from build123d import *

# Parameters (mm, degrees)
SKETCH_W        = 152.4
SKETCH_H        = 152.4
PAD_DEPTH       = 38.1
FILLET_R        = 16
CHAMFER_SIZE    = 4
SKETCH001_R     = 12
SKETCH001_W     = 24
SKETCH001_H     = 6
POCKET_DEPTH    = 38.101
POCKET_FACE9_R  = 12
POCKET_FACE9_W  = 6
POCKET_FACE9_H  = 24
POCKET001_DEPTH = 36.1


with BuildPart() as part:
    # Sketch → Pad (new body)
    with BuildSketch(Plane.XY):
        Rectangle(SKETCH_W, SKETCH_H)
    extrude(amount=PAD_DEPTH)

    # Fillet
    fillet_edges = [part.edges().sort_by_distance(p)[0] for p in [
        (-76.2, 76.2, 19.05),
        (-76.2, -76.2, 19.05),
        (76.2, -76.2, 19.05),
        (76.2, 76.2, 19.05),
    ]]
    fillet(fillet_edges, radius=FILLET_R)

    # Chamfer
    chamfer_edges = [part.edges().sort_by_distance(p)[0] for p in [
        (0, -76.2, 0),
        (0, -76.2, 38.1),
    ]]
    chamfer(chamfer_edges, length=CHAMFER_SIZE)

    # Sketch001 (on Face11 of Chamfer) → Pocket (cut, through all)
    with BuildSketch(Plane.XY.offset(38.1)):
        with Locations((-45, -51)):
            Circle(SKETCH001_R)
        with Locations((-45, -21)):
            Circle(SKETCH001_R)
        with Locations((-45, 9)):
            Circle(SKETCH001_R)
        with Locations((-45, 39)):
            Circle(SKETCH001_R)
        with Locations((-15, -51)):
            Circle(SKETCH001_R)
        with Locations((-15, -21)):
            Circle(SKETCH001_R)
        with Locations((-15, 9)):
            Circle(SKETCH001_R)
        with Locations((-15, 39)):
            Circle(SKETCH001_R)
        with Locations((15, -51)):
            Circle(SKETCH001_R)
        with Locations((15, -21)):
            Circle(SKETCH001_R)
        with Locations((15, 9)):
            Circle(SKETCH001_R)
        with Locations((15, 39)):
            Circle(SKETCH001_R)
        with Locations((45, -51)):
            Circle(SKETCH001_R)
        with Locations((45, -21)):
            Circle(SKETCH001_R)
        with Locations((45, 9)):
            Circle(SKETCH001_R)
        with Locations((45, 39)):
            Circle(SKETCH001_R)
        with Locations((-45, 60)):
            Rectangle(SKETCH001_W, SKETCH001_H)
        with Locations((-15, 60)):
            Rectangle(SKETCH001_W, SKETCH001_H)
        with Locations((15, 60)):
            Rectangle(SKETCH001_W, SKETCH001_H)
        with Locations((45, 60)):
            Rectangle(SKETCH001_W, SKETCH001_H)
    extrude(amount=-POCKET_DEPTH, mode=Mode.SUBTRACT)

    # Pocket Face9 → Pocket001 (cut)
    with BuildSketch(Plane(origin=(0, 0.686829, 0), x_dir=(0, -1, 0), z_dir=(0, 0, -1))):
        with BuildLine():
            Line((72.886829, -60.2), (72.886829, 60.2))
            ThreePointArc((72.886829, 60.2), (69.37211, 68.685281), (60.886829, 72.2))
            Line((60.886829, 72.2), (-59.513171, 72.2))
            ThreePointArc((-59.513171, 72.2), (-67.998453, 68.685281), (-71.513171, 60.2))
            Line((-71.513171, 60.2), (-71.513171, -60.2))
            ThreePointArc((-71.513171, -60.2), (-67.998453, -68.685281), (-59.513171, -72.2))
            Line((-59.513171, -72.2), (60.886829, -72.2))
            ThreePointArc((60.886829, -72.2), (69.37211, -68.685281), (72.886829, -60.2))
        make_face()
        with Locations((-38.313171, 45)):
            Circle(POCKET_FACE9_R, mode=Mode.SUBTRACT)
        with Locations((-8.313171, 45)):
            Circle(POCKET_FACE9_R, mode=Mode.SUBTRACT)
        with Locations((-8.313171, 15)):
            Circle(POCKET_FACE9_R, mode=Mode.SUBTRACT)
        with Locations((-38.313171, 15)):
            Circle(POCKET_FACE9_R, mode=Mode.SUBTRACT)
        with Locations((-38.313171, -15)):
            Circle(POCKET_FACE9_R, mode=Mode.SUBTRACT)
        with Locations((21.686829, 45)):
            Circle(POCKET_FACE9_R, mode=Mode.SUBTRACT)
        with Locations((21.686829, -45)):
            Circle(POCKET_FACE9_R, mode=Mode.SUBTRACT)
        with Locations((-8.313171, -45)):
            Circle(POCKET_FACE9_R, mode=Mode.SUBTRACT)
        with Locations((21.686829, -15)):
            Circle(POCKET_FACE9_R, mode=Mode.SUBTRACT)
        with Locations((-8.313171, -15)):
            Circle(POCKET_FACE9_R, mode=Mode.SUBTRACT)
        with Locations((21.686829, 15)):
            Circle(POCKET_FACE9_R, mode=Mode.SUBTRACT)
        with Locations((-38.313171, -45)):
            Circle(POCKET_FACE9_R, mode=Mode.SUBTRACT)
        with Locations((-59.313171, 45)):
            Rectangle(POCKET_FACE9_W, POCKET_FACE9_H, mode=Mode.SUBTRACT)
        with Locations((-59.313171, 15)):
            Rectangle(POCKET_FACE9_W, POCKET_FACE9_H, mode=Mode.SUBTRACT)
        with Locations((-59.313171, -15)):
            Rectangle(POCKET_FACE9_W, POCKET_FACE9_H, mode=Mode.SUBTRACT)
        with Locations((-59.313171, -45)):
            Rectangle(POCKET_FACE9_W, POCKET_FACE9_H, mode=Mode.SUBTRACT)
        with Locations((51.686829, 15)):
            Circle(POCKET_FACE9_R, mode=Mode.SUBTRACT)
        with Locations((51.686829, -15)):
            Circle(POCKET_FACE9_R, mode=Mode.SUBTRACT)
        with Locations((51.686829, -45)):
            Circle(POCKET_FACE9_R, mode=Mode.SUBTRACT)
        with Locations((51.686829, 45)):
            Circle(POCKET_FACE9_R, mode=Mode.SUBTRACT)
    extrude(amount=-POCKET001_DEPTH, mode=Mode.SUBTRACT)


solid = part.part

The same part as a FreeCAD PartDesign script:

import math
import FreeCAD as App
import Part
import Sketcher
from FreeCAD import Vector
Q = App.Units.Quantity


def edges_at(feature, points):
    """Names of the edges that pass closest to the given points."""
    edges = feature.Shape.Edges
    near = lambda p: min(range(len(edges)), key=lambda i: edges[i].distToShape(Part.Vertex(*p))[0])
    return sorted({f"Edge{near(p) + 1}" for p in points})

doc = App.newDocument("Part")
body = doc.addObject("PartDesign::Body", "Body")

# Sketch on XY plane
sketch1 = body.newObject("Sketcher::SketchObject", "Sketch")
sketch1.AttachmentSupport = (doc.getObject("XY_Plane"), [""])
sketch1.MapMode = "FlatFace"
sketch1.addGeometry(Part.LineSegment(Vector(-76, 76, 0), Vector(-76, -76, 0)), False)
sketch1.addGeometry(Part.LineSegment(Vector(-76, -76, 0), Vector(76, -76, 0)), False)
sketch1.addGeometry(Part.LineSegment(Vector(76, -76, 0), Vector(76, 76, 0)), False)
sketch1.addGeometry(Part.LineSegment(Vector(76, 76, 0), Vector(-76, 76, 0)), False)
sketch1.addConstraint(Sketcher.Constraint("Coincident", 0, 2, 1, 1))
sketch1.addConstraint(Sketcher.Constraint("Coincident", 1, 2, 2, 1))
sketch1.addConstraint(Sketcher.Constraint("Coincident", 2, 2, 3, 1))
sketch1.addConstraint(Sketcher.Constraint("Coincident", 3, 2, 0, 1))
sketch1.addConstraint(Sketcher.Constraint("Vertical", 0))
sketch1.addConstraint(Sketcher.Constraint("Horizontal", 1))
sketch1.addConstraint(Sketcher.Constraint("Vertical", 2))
sketch1.addConstraint(Sketcher.Constraint("Horizontal", 3))
sketch1.addConstraint(Sketcher.Constraint("Symmetric", 0, 2, 2, 2, -1, 1))
sketch1.addConstraint(Sketcher.Constraint("Equal", 3, 0))
sketch1.addConstraint(Sketcher.Constraint("DistanceX", 1, 1, 1, 2, Q("152.4 mm")))
pad1 = body.newObject("PartDesign::Pad", "Pad")
pad1.Profile = sketch1
pad1.Length = 38.1
doc.recompute()

fillet = body.newObject("PartDesign::Fillet", "Fillet")
fillet.Base = (pad1, edges_at(pad1, [
    (-76.2, 76.2, 19.05),
    (-76.2, -76.2, 19.05),
    (76.2, -76.2, 19.05),
    (76.2, 76.2, 19.05),
]))
fillet.Radius = 16
doc.recompute()

chamfer = body.newObject("PartDesign::Chamfer", "Chamfer")
chamfer.Base = (fillet, edges_at(fillet, [(0, -76.2, 0), (0, -76.2, 38.1)]))
chamfer.Size = 4

# Sketch on XY plane
sketch2 = body.newObject("Sketcher::SketchObject", "Sketch001")
sketch2.AttachmentSupport = (doc.getObject("XY_Plane"), [""])
sketch2.MapMode = "FlatFace"
sketch2.AttachmentOffset = App.Placement(Vector(0, 0, 38.1), App.Rotation())
sketch2.addGeometry(Part.Circle(Vector(-45, -51, 0), Vector(0, 0, 1), 12), False)
sketch2.addGeometry(Part.Circle(Vector(-45, -21, 0), Vector(0, 0, 1), 12), False)
sketch2.addGeometry(Part.Circle(Vector(-45, 9, 0), Vector(0, 0, 1), 12), False)
sketch2.addGeometry(Part.Circle(Vector(-45, 39, 0), Vector(0, 0, 1), 12), False)
sketch2.addGeometry(Part.Circle(Vector(-15, -51, 0), Vector(0, 0, 1), 12), False)
sketch2.addGeometry(Part.Circle(Vector(-15, -21, 0), Vector(0, 0, 1), 12), False)
sketch2.addGeometry(Part.Circle(Vector(-15, 9, 0), Vector(0, 0, 1), 12), False)
sketch2.addGeometry(Part.Circle(Vector(-15, 39, 0), Vector(0, 0, 1), 12), False)
sketch2.addGeometry(Part.Circle(Vector(15, -51, 0), Vector(0, 0, 1), 12), False)
sketch2.addGeometry(Part.Circle(Vector(15, -21, 0), Vector(0, 0, 1), 12), False)
sketch2.addGeometry(Part.Circle(Vector(15, 9, 0), Vector(0, 0, 1), 12), False)
sketch2.addGeometry(Part.Circle(Vector(15, 39, 0), Vector(0, 0, 1), 12), False)
sketch2.addGeometry(Part.Circle(Vector(45, -51, 0), Vector(0, 0, 1), 12), False)
sketch2.addGeometry(Part.Circle(Vector(45, -21, 0), Vector(0, 0, 1), 12), False)
sketch2.addGeometry(Part.Circle(Vector(45, 9, 0), Vector(0, 0, 1), 12), False)
sketch2.addGeometry(Part.Circle(Vector(45, 39, 0), Vector(0, 0, 1), 12), False)
sketch2.addGeometry(Part.LineSegment(Vector(-57, 63, 0), Vector(-57, 57, 0)), False)
sketch2.addGeometry(Part.LineSegment(Vector(-57, 57, 0), Vector(-33, 57, 0)), False)
sketch2.addGeometry(Part.LineSegment(Vector(-33, 57, 0), Vector(-33, 63, 0)), False)
sketch2.addGeometry(Part.LineSegment(Vector(-33, 63, 0), Vector(-57, 63, 0)), False)
sketch2.addGeometry(Part.LineSegment(Vector(-27, 63, 0), Vector(-27, 57, 0)), False)
sketch2.addGeometry(Part.LineSegment(Vector(-27, 57, 0), Vector(-3, 57, 0)), False)
sketch2.addGeometry(Part.LineSegment(Vector(-3, 57, 0), Vector(-3, 63, 0)), False)
sketch2.addGeometry(Part.LineSegment(Vector(-3, 63, 0), Vector(-27, 63, 0)), False)
sketch2.addGeometry(Part.LineSegment(Vector(3, 63, 0), Vector(3, 57, 0)), False)
sketch2.addGeometry(Part.LineSegment(Vector(3, 57, 0), Vector(27, 57, 0)), False)
sketch2.addGeometry(Part.LineSegment(Vector(27, 57, 0), Vector(27, 63, 0)), False)
sketch2.addGeometry(Part.LineSegment(Vector(27, 63, 0), Vector(3, 63, 0)), False)
sketch2.addGeometry(Part.LineSegment(Vector(33, 63, 0), Vector(33, 57, 0)), False)
sketch2.addGeometry(Part.LineSegment(Vector(33, 57, 0), Vector(57, 57, 0)), False)
sketch2.addGeometry(Part.LineSegment(Vector(57, 57, 0), Vector(57, 63, 0)), False)
sketch2.addGeometry(Part.LineSegment(Vector(57, 63, 0), Vector(33, 63, 0)), False)
sketch2.addConstraint(Sketcher.Constraint("Coincident", 16, 2, 17, 1))
sketch2.addConstraint(Sketcher.Constraint("Coincident", 17, 2, 18, 1))
sketch2.addConstraint(Sketcher.Constraint("Coincident", 18, 2, 19, 1))
sketch2.addConstraint(Sketcher.Constraint("Coincident", 19, 2, 16, 1))
sketch2.addConstraint(Sketcher.Constraint("Coincident", 20, 2, 21, 1))
sketch2.addConstraint(Sketcher.Constraint("Coincident", 21, 2, 22, 1))
sketch2.addConstraint(Sketcher.Constraint("Coincident", 22, 2, 23, 1))
sketch2.addConstraint(Sketcher.Constraint("Coincident", 23, 2, 20, 1))
sketch2.addConstraint(Sketcher.Constraint("Coincident", 24, 2, 25, 1))
sketch2.addConstraint(Sketcher.Constraint("Coincident", 25, 2, 26, 1))
sketch2.addConstraint(Sketcher.Constraint("Coincident", 26, 2, 27, 1))
sketch2.addConstraint(Sketcher.Constraint("Coincident", 27, 2, 24, 1))
sketch2.addConstraint(Sketcher.Constraint("Coincident", 28, 2, 29, 1))
sketch2.addConstraint(Sketcher.Constraint("Coincident", 29, 2, 30, 1))
sketch2.addConstraint(Sketcher.Constraint("Coincident", 30, 2, 31, 1))
sketch2.addConstraint(Sketcher.Constraint("Coincident", 31, 2, 28, 1))
sketch2.addConstraint(Sketcher.Constraint("Vertical", 16))
sketch2.addConstraint(Sketcher.Constraint("Horizontal", 17))
sketch2.addConstraint(Sketcher.Constraint("Vertical", 18))
sketch2.addConstraint(Sketcher.Constraint("Horizontal", 19))
sketch2.addConstraint(Sketcher.Constraint("Vertical", 20))
sketch2.addConstraint(Sketcher.Constraint("Horizontal", 21))
sketch2.addConstraint(Sketcher.Constraint("Vertical", 22))
sketch2.addConstraint(Sketcher.Constraint("Horizontal", 23))
sketch2.addConstraint(Sketcher.Constraint("Vertical", 24))
sketch2.addConstraint(Sketcher.Constraint("Horizontal", 25))
sketch2.addConstraint(Sketcher.Constraint("Vertical", 26))
sketch2.addConstraint(Sketcher.Constraint("Horizontal", 27))
sketch2.addConstraint(Sketcher.Constraint("Vertical", 28))
sketch2.addConstraint(Sketcher.Constraint("Horizontal", 29))
sketch2.addConstraint(Sketcher.Constraint("Vertical", 30))
sketch2.addConstraint(Sketcher.Constraint("Horizontal", 31))
sketch2.addConstraint(Sketcher.Constraint("Equal", 0, 1))
sketch2.addConstraint(Sketcher.Constraint("Equal", 1, 2))
sketch2.addConstraint(Sketcher.Constraint("Equal", 2, 3))
sketch2.addConstraint(Sketcher.Constraint("Equal", 3, 4))
sketch2.addConstraint(Sketcher.Constraint("Equal", 4, 5))
sketch2.addConstraint(Sketcher.Constraint("Equal", 5, 6))
sketch2.addConstraint(Sketcher.Constraint("Equal", 6, 7))
sketch2.addConstraint(Sketcher.Constraint("Equal", 7, 8))
sketch2.addConstraint(Sketcher.Constraint("Equal", 8, 9))
sketch2.addConstraint(Sketcher.Constraint("Equal", 9, 10))
sketch2.addConstraint(Sketcher.Constraint("Equal", 10, 11))
sketch2.addConstraint(Sketcher.Constraint("Equal", 11, 12))
sketch2.addConstraint(Sketcher.Constraint("Equal", 12, 13))
sketch2.addConstraint(Sketcher.Constraint("Equal", 13, 14))
sketch2.addConstraint(Sketcher.Constraint("Equal", 14, 15))
sketch2.addConstraint(Sketcher.Constraint("Symmetric", 4, 3, 8, 3, -2))
sketch2.addConstraint(Sketcher.Constraint("Symmetric", 5, 3, 9, 3, -2))
sketch2.addConstraint(Sketcher.Constraint("Symmetric", 6, 3, 10, 3, -2))
sketch2.addConstraint(Sketcher.Constraint("Symmetric", 7, 3, 11, 3, -2))
sketch2.addConstraint(Sketcher.Constraint("Symmetric", 0, 3, 12, 3, -2))
sketch2.addConstraint(Sketcher.Constraint("Symmetric", 1, 3, 13, 3, -2))
sketch2.addConstraint(Sketcher.Constraint("Symmetric", 2, 3, 14, 3, -2))
sketch2.addConstraint(Sketcher.Constraint("Symmetric", 3, 3, 15, 3, -2))
sketch2.addConstraint(Sketcher.Constraint("Symmetric", 21, 2, 24, 2, -2))
sketch2.addConstraint(Sketcher.Constraint("Symmetric", 23, 2, 26, 2, -2))
sketch2.addConstraint(Sketcher.Constraint("Symmetric", 17, 2, 28, 2, -2))
sketch2.addConstraint(Sketcher.Constraint("Symmetric", 19, 2, 30, 2, -2))
sketch2.addConstraint(Sketcher.Constraint("Horizontal", 0, 3, 4, 3))
sketch2.addConstraint(Sketcher.Constraint("Horizontal", 1, 3, 5, 3))
sketch2.addConstraint(Sketcher.Constraint("Horizontal", 2, 3, 6, 3))
sketch2.addConstraint(Sketcher.Constraint("Horizontal", 3, 3, 7, 3))
sketch2.addConstraint(Sketcher.Constraint("Horizontal", 17, 2, 20, 2))
sketch2.addConstraint(Sketcher.Constraint("Horizontal", 19, 2, 22, 2))
sketch2.addConstraint(Sketcher.Constraint("Vertical", 0, 3, 1, 3))
sketch2.addConstraint(Sketcher.Constraint("Vertical", 1, 3, 2, 3))
sketch2.addConstraint(Sketcher.Constraint("Vertical", 2, 3, 3, 3))
sketch2.addConstraint(Sketcher.Constraint("Vertical", 4, 3, 5, 3))
sketch2.addConstraint(Sketcher.Constraint("Vertical", 5, 3, 6, 3))
sketch2.addConstraint(Sketcher.Constraint("Vertical", 6, 3, 7, 3))
sketch2.addConstraint(Sketcher.Constraint("Equal", 19, 21))
sketch2.addConstraint(Sketcher.Constraint("Diameter", 0, Q("24 mm")))
sketch2.addConstraint(Sketcher.Constraint("DistanceX", 17, 1, 17, 2, Q("24 mm")))
sketch2.addConstraint(Sketcher.Constraint("DistanceY", 16, 2, 16, 1, Q("6 mm")))
sketch2.addConstraint(Sketcher.Constraint("DistanceX", 0, 3, -1, 1, Q("45 mm")))
sketch2.addConstraint(Sketcher.Constraint("DistanceY", 0, 3, -1, 1, Q("51 mm")))
sketch2.addConstraint(Sketcher.Constraint("DistanceY", 1, 3, -1, 1, Q("21 mm")))
sketch2.addConstraint(Sketcher.Constraint("DistanceY", -1, 1, 2, 3, Q("9 mm")))
sketch2.addConstraint(Sketcher.Constraint("DistanceY", -1, 1, 3, 3, Q("39 mm")))
sketch2.addConstraint(Sketcher.Constraint("DistanceX", 4, 3, -1, 1, Q("15 mm")))
sketch2.addConstraint(Sketcher.Constraint("DistanceX", 16, 2, -1, 1, Q("57 mm")))
sketch2.addConstraint(Sketcher.Constraint("DistanceY", -1, 1, 16, 2, Q("57 mm")))
sketch2.addConstraint(Sketcher.Constraint("DistanceX", 20, 2, -1, 1, Q("27 mm")))
pocket1 = body.newObject("PartDesign::Pocket", "Pocket")
pocket1.Profile = sketch2
pocket1.Type = "ThroughAll"

# Sketch on XY plane
sketch3 = body.newObject("Sketcher::SketchObject", "Sketch002")
sketch3.AttachmentSupport = (doc.getObject("XY_Plane"), [""])
sketch3.MapMode = "FlatFace"
sketch3.addGeometry(Part.LineSegment(Vector(60, -72, 0), Vector(-60, -72, 0)), False)
sketch3.addGeometry(Part.ArcOfCircle(Part.Circle(Vector(-60, -60, 0), Vector(0, 0, 1), 12), math.radians(-180), math.radians(-90)), False)
sketch3.addGeometry(Part.LineSegment(Vector(-72, -60, 0), Vector(-72, 60, 0)), False)
sketch3.addGeometry(Part.ArcOfCircle(Part.Circle(Vector(-60, 60, 0), Vector(0, 0, 1), 12), math.radians(90), math.radians(180)), False)
sketch3.addGeometry(Part.LineSegment(Vector(-60, 72, 0), Vector(60, 72, 0)), False)
sketch3.addGeometry(Part.ArcOfCircle(Part.Circle(Vector(60, 60, 0), Vector(0, 0, 1), 12), math.radians(0), math.radians(90)), False)
sketch3.addGeometry(Part.LineSegment(Vector(72, 60, 0), Vector(72, -60, 0)), False)
sketch3.addGeometry(Part.ArcOfCircle(Part.Circle(Vector(60, -60, 0), Vector(0, 0, 1), 12), math.radians(-90), math.radians(0)), False)
sketch3.addGeometry(Part.LineSegment(Vector(57, 57, 0), Vector(57, 63, 0)), False)
sketch3.addGeometry(Part.LineSegment(Vector(57, 63, 0), Vector(33, 63, 0)), False)
sketch3.addGeometry(Part.LineSegment(Vector(33, 63, 0), Vector(33, 57, 0)), False)
sketch3.addGeometry(Part.LineSegment(Vector(33, 57, 0), Vector(57, 57, 0)), False)
sketch3.addGeometry(Part.Circle(Vector(45, 39, 0), Vector(0, 0, 1), 12), False)
sketch3.addGeometry(Part.Circle(Vector(45, 9, 0), Vector(0, 0, 1), 12), False)
sketch3.addGeometry(Part.LineSegment(Vector(27, 57, 0), Vector(27, 63, 0)), False)
sketch3.addGeometry(Part.LineSegment(Vector(27, 63, 0), Vector(3, 63, 0)), False)
sketch3.addGeometry(Part.LineSegment(Vector(3, 63, 0), Vector(3, 57, 0)), False)
sketch3.addGeometry(Part.LineSegment(Vector(3, 57, 0), Vector(27, 57, 0)), False)
sketch3.addGeometry(Part.Circle(Vector(15, 39, 0), Vector(0, 0, 1), 12), False)
sketch3.addGeometry(Part.Circle(Vector(15, 9, 0), Vector(0, 0, 1), 12), False)
sketch3.addGeometry(Part.Circle(Vector(45, -21, 0), Vector(0, 0, 1), 12), False)
sketch3.addGeometry(Part.Circle(Vector(45, -51, 0), Vector(0, 0, 1), 12), False)
sketch3.addGeometry(Part.Circle(Vector(15, -21, 0), Vector(0, 0, 1), 12), False)
sketch3.addGeometry(Part.Circle(Vector(15, -51, 0), Vector(0, 0, 1), 12), False)
sketch3.addGeometry(Part.LineSegment(Vector(-3, 57, 0), Vector(-3, 63, 0)), False)
sketch3.addGeometry(Part.LineSegment(Vector(-3, 63, 0), Vector(-27, 63, 0)), False)
sketch3.addGeometry(Part.LineSegment(Vector(-27, 63, 0), Vector(-27, 57, 0)), False)
sketch3.addGeometry(Part.LineSegment(Vector(-27, 57, 0), Vector(-3, 57, 0)), False)
sketch3.addGeometry(Part.Circle(Vector(-15, 39, 0), Vector(0, 0, 1), 12), False)
sketch3.addGeometry(Part.Circle(Vector(-15, 9, 0), Vector(0, 0, 1), 12), False)
sketch3.addGeometry(Part.LineSegment(Vector(-33, 57, 0), Vector(-33, 63, 0)), False)
sketch3.addGeometry(Part.LineSegment(Vector(-33, 63, 0), Vector(-57, 63, 0)), False)
sketch3.addGeometry(Part.LineSegment(Vector(-57, 63, 0), Vector(-57, 57, 0)), False)
sketch3.addGeometry(Part.LineSegment(Vector(-57, 57, 0), Vector(-33, 57, 0)), False)
sketch3.addGeometry(Part.Circle(Vector(-45, 39, 0), Vector(0, 0, 1), 12), False)
sketch3.addGeometry(Part.Circle(Vector(-45, 9, 0), Vector(0, 0, 1), 12), False)
sketch3.addGeometry(Part.Circle(Vector(-15, -21, 0), Vector(0, 0, 1), 12), False)
sketch3.addGeometry(Part.Circle(Vector(-15, -51, 0), Vector(0, 0, 1), 12), False)
sketch3.addGeometry(Part.Circle(Vector(-45, -21, 0), Vector(0, 0, 1), 12), False)
sketch3.addGeometry(Part.Circle(Vector(-45, -51, 0), Vector(0, 0, 1), 12), False)
sketch3.addConstraint(Sketcher.Constraint("Tangent", 0, 2, 1, 2))
sketch3.addConstraint(Sketcher.Constraint("Tangent", 1, 1, 2, 1))
sketch3.addConstraint(Sketcher.Constraint("Tangent", 2, 2, 3, 2))
sketch3.addConstraint(Sketcher.Constraint("Tangent", 3, 1, 4, 1))
sketch3.addConstraint(Sketcher.Constraint("Tangent", 4, 2, 5, 2))
sketch3.addConstraint(Sketcher.Constraint("Tangent", 5, 1, 6, 1))
sketch3.addConstraint(Sketcher.Constraint("Tangent", 6, 2, 7, 2))
sketch3.addConstraint(Sketcher.Constraint("Tangent", 7, 1, 0, 1))
sketch3.addConstraint(Sketcher.Constraint("Coincident", 8, 2, 9, 1))
sketch3.addConstraint(Sketcher.Constraint("Coincident", 9, 2, 10, 1))
sketch3.addConstraint(Sketcher.Constraint("Coincident", 10, 2, 11, 1))
sketch3.addConstraint(Sketcher.Constraint("Coincident", 11, 2, 8, 1))
sketch3.addConstraint(Sketcher.Constraint("Coincident", 14, 2, 15, 1))
sketch3.addConstraint(Sketcher.Constraint("Coincident", 15, 2, 16, 1))
sketch3.addConstraint(Sketcher.Constraint("Coincident", 16, 2, 17, 1))
sketch3.addConstraint(Sketcher.Constraint("Coincident", 17, 2, 14, 1))
sketch3.addConstraint(Sketcher.Constraint("Coincident", 24, 2, 25, 1))
sketch3.addConstraint(Sketcher.Constraint("Coincident", 25, 2, 26, 1))
sketch3.addConstraint(Sketcher.Constraint("Coincident", 26, 2, 27, 1))
sketch3.addConstraint(Sketcher.Constraint("Coincident", 27, 2, 24, 1))
sketch3.addConstraint(Sketcher.Constraint("Coincident", 30, 2, 31, 1))
sketch3.addConstraint(Sketcher.Constraint("Coincident", 31, 2, 32, 1))
sketch3.addConstraint(Sketcher.Constraint("Coincident", 32, 2, 33, 1))
sketch3.addConstraint(Sketcher.Constraint("Coincident", 33, 2, 30, 1))
sketch3.addConstraint(Sketcher.Constraint("Horizontal", 0))
sketch3.addConstraint(Sketcher.Constraint("Vertical", 2))
sketch3.addConstraint(Sketcher.Constraint("Horizontal", 4))
sketch3.addConstraint(Sketcher.Constraint("Vertical", 6))
sketch3.addConstraint(Sketcher.Constraint("Vertical", 8))
sketch3.addConstraint(Sketcher.Constraint("Horizontal", 9))
sketch3.addConstraint(Sketcher.Constraint("Vertical", 10))
sketch3.addConstraint(Sketcher.Constraint("Horizontal", 11))
sketch3.addConstraint(Sketcher.Constraint("Vertical", 14))
sketch3.addConstraint(Sketcher.Constraint("Horizontal", 15))
sketch3.addConstraint(Sketcher.Constraint("Vertical", 16))
sketch3.addConstraint(Sketcher.Constraint("Horizontal", 17))
sketch3.addConstraint(Sketcher.Constraint("Vertical", 24))
sketch3.addConstraint(Sketcher.Constraint("Horizontal", 25))
sketch3.addConstraint(Sketcher.Constraint("Vertical", 26))
sketch3.addConstraint(Sketcher.Constraint("Horizontal", 27))
sketch3.addConstraint(Sketcher.Constraint("Vertical", 30))
sketch3.addConstraint(Sketcher.Constraint("Horizontal", 31))
sketch3.addConstraint(Sketcher.Constraint("Vertical", 32))
sketch3.addConstraint(Sketcher.Constraint("Horizontal", 33))
sketch3.addConstraint(Sketcher.Constraint("Equal", 1, 3))
sketch3.addConstraint(Sketcher.Constraint("Equal", 3, 5))
sketch3.addConstraint(Sketcher.Constraint("Equal", 5, 7))
sketch3.addConstraint(Sketcher.Constraint("Equal", 7, 12))
sketch3.addConstraint(Sketcher.Constraint("Equal", 12, 13))
sketch3.addConstraint(Sketcher.Constraint("Equal", 13, 18))
sketch3.addConstraint(Sketcher.Constraint("Equal", 18, 19))
sketch3.addConstraint(Sketcher.Constraint("Equal", 19, 20))
sketch3.addConstraint(Sketcher.Constraint("Equal", 20, 21))
sketch3.addConstraint(Sketcher.Constraint("Equal", 21, 22))
sketch3.addConstraint(Sketcher.Constraint("Equal", 22, 23))
sketch3.addConstraint(Sketcher.Constraint("Equal", 23, 28))
sketch3.addConstraint(Sketcher.Constraint("Equal", 28, 29))
sketch3.addConstraint(Sketcher.Constraint("Equal", 29, 34))
sketch3.addConstraint(Sketcher.Constraint("Equal", 34, 35))
sketch3.addConstraint(Sketcher.Constraint("Equal", 35, 36))
sketch3.addConstraint(Sketcher.Constraint("Equal", 36, 37))
sketch3.addConstraint(Sketcher.Constraint("Equal", 37, 38))
sketch3.addConstraint(Sketcher.Constraint("Equal", 38, 39))
sketch3.addConstraint(Sketcher.Constraint("Symmetric", 1, 3, 5, 3, -1, 1))
sketch3.addConstraint(Sketcher.Constraint("Symmetric", 18, 3, 28, 3, -2))
sketch3.addConstraint(Sketcher.Constraint("Symmetric", 19, 3, 29, 3, -2))
sketch3.addConstraint(Sketcher.Constraint("Symmetric", 12, 3, 34, 3, -2))
sketch3.addConstraint(Sketcher.Constraint("Symmetric", 13, 3, 35, 3, -2))
sketch3.addConstraint(Sketcher.Constraint("Symmetric", 22, 3, 36, 3, -2))
sketch3.addConstraint(Sketcher.Constraint("Symmetric", 23, 3, 37, 3, -2))
sketch3.addConstraint(Sketcher.Constraint("Symmetric", 20, 3, 38, 3, -2))
sketch3.addConstraint(Sketcher.Constraint("Symmetric", 21, 3, 39, 3, -2))
sketch3.addConstraint(Sketcher.Constraint("Symmetric", 15, 2, 24, 2, -2))
sketch3.addConstraint(Sketcher.Constraint("Symmetric", 17, 2, 26, 2, -2))
sketch3.addConstraint(Sketcher.Constraint("Symmetric", 9, 2, 30, 2, -2))
sketch3.addConstraint(Sketcher.Constraint("Symmetric", 11, 2, 32, 2, -2))
sketch3.addConstraint(Sketcher.Constraint("Horizontal", 12, 3, 18, 3))
sketch3.addConstraint(Sketcher.Constraint("Horizontal", 13, 3, 19, 3))
sketch3.addConstraint(Sketcher.Constraint("Horizontal", 20, 3, 22, 3))
sketch3.addConstraint(Sketcher.Constraint("Horizontal", 21, 3, 23, 3))
sketch3.addConstraint(Sketcher.Constraint("Horizontal", 9, 2, 14, 2))
sketch3.addConstraint(Sketcher.Constraint("Horizontal", 11, 2, 16, 2))
sketch3.addConstraint(Sketcher.Constraint("Vertical", 12, 3, 13, 3))
sketch3.addConstraint(Sketcher.Constraint("Vertical", 18, 3, 19, 3))
sketch3.addConstraint(Sketcher.Constraint("Vertical", 13, 3, 20, 3))
sketch3.addConstraint(Sketcher.Constraint("Vertical", 20, 3, 21, 3))
sketch3.addConstraint(Sketcher.Constraint("Vertical", 19, 3, 22, 3))
sketch3.addConstraint(Sketcher.Constraint("Vertical", 22, 3, 23, 3))
sketch3.addConstraint(Sketcher.Constraint("Equal", 11, 15))
sketch3.addConstraint(Sketcher.Constraint("Equal", 4, 2))
sketch3.addConstraint(Sketcher.Constraint("Diameter", 12, Q("24 mm")))
sketch3.addConstraint(Sketcher.Constraint("DistanceX", 9, 2, 9, 1, Q("24 mm")))
sketch3.addConstraint(Sketcher.Constraint("DistanceY", 8, 1, 8, 2, Q("6 mm")))
sketch3.addConstraint(Sketcher.Constraint("DistanceX", 0, 2, 0, 1, Q("120.4 mm")))
sketch3.addConstraint(Sketcher.Constraint("DistanceX", -1, 1, 12, 3, Q("45 mm")))
sketch3.addConstraint(Sketcher.Constraint("DistanceY", -1, 1, 12, 3, Q("39 mm")))
sketch3.addConstraint(Sketcher.Constraint("DistanceY", -1, 1, 13, 3, Q("9 mm")))
sketch3.addConstraint(Sketcher.Constraint("DistanceX", -1, 1, 18, 3, Q("15 mm")))
sketch3.addConstraint(Sketcher.Constraint("DistanceY", 20, 3, -1, 1, Q("21 mm")))
sketch3.addConstraint(Sketcher.Constraint("DistanceY", 21, 3, -1, 1, Q("51 mm")))
sketch3.addConstraint(Sketcher.Constraint("DistanceX", -1, 1, 8, 2, Q("57 mm")))
sketch3.addConstraint(Sketcher.Constraint("DistanceY", -1, 1, 8, 2, Q("63 mm")))
sketch3.addConstraint(Sketcher.Constraint("DistanceX", -1, 1, 14, 2, Q("27 mm")))
pocket2 = body.newObject("PartDesign::Pocket", "Pocket001")
pocket2.Profile = sketch3
pocket2.Length = 36.1
pocket2.Reversed = True

doc.recompute()
